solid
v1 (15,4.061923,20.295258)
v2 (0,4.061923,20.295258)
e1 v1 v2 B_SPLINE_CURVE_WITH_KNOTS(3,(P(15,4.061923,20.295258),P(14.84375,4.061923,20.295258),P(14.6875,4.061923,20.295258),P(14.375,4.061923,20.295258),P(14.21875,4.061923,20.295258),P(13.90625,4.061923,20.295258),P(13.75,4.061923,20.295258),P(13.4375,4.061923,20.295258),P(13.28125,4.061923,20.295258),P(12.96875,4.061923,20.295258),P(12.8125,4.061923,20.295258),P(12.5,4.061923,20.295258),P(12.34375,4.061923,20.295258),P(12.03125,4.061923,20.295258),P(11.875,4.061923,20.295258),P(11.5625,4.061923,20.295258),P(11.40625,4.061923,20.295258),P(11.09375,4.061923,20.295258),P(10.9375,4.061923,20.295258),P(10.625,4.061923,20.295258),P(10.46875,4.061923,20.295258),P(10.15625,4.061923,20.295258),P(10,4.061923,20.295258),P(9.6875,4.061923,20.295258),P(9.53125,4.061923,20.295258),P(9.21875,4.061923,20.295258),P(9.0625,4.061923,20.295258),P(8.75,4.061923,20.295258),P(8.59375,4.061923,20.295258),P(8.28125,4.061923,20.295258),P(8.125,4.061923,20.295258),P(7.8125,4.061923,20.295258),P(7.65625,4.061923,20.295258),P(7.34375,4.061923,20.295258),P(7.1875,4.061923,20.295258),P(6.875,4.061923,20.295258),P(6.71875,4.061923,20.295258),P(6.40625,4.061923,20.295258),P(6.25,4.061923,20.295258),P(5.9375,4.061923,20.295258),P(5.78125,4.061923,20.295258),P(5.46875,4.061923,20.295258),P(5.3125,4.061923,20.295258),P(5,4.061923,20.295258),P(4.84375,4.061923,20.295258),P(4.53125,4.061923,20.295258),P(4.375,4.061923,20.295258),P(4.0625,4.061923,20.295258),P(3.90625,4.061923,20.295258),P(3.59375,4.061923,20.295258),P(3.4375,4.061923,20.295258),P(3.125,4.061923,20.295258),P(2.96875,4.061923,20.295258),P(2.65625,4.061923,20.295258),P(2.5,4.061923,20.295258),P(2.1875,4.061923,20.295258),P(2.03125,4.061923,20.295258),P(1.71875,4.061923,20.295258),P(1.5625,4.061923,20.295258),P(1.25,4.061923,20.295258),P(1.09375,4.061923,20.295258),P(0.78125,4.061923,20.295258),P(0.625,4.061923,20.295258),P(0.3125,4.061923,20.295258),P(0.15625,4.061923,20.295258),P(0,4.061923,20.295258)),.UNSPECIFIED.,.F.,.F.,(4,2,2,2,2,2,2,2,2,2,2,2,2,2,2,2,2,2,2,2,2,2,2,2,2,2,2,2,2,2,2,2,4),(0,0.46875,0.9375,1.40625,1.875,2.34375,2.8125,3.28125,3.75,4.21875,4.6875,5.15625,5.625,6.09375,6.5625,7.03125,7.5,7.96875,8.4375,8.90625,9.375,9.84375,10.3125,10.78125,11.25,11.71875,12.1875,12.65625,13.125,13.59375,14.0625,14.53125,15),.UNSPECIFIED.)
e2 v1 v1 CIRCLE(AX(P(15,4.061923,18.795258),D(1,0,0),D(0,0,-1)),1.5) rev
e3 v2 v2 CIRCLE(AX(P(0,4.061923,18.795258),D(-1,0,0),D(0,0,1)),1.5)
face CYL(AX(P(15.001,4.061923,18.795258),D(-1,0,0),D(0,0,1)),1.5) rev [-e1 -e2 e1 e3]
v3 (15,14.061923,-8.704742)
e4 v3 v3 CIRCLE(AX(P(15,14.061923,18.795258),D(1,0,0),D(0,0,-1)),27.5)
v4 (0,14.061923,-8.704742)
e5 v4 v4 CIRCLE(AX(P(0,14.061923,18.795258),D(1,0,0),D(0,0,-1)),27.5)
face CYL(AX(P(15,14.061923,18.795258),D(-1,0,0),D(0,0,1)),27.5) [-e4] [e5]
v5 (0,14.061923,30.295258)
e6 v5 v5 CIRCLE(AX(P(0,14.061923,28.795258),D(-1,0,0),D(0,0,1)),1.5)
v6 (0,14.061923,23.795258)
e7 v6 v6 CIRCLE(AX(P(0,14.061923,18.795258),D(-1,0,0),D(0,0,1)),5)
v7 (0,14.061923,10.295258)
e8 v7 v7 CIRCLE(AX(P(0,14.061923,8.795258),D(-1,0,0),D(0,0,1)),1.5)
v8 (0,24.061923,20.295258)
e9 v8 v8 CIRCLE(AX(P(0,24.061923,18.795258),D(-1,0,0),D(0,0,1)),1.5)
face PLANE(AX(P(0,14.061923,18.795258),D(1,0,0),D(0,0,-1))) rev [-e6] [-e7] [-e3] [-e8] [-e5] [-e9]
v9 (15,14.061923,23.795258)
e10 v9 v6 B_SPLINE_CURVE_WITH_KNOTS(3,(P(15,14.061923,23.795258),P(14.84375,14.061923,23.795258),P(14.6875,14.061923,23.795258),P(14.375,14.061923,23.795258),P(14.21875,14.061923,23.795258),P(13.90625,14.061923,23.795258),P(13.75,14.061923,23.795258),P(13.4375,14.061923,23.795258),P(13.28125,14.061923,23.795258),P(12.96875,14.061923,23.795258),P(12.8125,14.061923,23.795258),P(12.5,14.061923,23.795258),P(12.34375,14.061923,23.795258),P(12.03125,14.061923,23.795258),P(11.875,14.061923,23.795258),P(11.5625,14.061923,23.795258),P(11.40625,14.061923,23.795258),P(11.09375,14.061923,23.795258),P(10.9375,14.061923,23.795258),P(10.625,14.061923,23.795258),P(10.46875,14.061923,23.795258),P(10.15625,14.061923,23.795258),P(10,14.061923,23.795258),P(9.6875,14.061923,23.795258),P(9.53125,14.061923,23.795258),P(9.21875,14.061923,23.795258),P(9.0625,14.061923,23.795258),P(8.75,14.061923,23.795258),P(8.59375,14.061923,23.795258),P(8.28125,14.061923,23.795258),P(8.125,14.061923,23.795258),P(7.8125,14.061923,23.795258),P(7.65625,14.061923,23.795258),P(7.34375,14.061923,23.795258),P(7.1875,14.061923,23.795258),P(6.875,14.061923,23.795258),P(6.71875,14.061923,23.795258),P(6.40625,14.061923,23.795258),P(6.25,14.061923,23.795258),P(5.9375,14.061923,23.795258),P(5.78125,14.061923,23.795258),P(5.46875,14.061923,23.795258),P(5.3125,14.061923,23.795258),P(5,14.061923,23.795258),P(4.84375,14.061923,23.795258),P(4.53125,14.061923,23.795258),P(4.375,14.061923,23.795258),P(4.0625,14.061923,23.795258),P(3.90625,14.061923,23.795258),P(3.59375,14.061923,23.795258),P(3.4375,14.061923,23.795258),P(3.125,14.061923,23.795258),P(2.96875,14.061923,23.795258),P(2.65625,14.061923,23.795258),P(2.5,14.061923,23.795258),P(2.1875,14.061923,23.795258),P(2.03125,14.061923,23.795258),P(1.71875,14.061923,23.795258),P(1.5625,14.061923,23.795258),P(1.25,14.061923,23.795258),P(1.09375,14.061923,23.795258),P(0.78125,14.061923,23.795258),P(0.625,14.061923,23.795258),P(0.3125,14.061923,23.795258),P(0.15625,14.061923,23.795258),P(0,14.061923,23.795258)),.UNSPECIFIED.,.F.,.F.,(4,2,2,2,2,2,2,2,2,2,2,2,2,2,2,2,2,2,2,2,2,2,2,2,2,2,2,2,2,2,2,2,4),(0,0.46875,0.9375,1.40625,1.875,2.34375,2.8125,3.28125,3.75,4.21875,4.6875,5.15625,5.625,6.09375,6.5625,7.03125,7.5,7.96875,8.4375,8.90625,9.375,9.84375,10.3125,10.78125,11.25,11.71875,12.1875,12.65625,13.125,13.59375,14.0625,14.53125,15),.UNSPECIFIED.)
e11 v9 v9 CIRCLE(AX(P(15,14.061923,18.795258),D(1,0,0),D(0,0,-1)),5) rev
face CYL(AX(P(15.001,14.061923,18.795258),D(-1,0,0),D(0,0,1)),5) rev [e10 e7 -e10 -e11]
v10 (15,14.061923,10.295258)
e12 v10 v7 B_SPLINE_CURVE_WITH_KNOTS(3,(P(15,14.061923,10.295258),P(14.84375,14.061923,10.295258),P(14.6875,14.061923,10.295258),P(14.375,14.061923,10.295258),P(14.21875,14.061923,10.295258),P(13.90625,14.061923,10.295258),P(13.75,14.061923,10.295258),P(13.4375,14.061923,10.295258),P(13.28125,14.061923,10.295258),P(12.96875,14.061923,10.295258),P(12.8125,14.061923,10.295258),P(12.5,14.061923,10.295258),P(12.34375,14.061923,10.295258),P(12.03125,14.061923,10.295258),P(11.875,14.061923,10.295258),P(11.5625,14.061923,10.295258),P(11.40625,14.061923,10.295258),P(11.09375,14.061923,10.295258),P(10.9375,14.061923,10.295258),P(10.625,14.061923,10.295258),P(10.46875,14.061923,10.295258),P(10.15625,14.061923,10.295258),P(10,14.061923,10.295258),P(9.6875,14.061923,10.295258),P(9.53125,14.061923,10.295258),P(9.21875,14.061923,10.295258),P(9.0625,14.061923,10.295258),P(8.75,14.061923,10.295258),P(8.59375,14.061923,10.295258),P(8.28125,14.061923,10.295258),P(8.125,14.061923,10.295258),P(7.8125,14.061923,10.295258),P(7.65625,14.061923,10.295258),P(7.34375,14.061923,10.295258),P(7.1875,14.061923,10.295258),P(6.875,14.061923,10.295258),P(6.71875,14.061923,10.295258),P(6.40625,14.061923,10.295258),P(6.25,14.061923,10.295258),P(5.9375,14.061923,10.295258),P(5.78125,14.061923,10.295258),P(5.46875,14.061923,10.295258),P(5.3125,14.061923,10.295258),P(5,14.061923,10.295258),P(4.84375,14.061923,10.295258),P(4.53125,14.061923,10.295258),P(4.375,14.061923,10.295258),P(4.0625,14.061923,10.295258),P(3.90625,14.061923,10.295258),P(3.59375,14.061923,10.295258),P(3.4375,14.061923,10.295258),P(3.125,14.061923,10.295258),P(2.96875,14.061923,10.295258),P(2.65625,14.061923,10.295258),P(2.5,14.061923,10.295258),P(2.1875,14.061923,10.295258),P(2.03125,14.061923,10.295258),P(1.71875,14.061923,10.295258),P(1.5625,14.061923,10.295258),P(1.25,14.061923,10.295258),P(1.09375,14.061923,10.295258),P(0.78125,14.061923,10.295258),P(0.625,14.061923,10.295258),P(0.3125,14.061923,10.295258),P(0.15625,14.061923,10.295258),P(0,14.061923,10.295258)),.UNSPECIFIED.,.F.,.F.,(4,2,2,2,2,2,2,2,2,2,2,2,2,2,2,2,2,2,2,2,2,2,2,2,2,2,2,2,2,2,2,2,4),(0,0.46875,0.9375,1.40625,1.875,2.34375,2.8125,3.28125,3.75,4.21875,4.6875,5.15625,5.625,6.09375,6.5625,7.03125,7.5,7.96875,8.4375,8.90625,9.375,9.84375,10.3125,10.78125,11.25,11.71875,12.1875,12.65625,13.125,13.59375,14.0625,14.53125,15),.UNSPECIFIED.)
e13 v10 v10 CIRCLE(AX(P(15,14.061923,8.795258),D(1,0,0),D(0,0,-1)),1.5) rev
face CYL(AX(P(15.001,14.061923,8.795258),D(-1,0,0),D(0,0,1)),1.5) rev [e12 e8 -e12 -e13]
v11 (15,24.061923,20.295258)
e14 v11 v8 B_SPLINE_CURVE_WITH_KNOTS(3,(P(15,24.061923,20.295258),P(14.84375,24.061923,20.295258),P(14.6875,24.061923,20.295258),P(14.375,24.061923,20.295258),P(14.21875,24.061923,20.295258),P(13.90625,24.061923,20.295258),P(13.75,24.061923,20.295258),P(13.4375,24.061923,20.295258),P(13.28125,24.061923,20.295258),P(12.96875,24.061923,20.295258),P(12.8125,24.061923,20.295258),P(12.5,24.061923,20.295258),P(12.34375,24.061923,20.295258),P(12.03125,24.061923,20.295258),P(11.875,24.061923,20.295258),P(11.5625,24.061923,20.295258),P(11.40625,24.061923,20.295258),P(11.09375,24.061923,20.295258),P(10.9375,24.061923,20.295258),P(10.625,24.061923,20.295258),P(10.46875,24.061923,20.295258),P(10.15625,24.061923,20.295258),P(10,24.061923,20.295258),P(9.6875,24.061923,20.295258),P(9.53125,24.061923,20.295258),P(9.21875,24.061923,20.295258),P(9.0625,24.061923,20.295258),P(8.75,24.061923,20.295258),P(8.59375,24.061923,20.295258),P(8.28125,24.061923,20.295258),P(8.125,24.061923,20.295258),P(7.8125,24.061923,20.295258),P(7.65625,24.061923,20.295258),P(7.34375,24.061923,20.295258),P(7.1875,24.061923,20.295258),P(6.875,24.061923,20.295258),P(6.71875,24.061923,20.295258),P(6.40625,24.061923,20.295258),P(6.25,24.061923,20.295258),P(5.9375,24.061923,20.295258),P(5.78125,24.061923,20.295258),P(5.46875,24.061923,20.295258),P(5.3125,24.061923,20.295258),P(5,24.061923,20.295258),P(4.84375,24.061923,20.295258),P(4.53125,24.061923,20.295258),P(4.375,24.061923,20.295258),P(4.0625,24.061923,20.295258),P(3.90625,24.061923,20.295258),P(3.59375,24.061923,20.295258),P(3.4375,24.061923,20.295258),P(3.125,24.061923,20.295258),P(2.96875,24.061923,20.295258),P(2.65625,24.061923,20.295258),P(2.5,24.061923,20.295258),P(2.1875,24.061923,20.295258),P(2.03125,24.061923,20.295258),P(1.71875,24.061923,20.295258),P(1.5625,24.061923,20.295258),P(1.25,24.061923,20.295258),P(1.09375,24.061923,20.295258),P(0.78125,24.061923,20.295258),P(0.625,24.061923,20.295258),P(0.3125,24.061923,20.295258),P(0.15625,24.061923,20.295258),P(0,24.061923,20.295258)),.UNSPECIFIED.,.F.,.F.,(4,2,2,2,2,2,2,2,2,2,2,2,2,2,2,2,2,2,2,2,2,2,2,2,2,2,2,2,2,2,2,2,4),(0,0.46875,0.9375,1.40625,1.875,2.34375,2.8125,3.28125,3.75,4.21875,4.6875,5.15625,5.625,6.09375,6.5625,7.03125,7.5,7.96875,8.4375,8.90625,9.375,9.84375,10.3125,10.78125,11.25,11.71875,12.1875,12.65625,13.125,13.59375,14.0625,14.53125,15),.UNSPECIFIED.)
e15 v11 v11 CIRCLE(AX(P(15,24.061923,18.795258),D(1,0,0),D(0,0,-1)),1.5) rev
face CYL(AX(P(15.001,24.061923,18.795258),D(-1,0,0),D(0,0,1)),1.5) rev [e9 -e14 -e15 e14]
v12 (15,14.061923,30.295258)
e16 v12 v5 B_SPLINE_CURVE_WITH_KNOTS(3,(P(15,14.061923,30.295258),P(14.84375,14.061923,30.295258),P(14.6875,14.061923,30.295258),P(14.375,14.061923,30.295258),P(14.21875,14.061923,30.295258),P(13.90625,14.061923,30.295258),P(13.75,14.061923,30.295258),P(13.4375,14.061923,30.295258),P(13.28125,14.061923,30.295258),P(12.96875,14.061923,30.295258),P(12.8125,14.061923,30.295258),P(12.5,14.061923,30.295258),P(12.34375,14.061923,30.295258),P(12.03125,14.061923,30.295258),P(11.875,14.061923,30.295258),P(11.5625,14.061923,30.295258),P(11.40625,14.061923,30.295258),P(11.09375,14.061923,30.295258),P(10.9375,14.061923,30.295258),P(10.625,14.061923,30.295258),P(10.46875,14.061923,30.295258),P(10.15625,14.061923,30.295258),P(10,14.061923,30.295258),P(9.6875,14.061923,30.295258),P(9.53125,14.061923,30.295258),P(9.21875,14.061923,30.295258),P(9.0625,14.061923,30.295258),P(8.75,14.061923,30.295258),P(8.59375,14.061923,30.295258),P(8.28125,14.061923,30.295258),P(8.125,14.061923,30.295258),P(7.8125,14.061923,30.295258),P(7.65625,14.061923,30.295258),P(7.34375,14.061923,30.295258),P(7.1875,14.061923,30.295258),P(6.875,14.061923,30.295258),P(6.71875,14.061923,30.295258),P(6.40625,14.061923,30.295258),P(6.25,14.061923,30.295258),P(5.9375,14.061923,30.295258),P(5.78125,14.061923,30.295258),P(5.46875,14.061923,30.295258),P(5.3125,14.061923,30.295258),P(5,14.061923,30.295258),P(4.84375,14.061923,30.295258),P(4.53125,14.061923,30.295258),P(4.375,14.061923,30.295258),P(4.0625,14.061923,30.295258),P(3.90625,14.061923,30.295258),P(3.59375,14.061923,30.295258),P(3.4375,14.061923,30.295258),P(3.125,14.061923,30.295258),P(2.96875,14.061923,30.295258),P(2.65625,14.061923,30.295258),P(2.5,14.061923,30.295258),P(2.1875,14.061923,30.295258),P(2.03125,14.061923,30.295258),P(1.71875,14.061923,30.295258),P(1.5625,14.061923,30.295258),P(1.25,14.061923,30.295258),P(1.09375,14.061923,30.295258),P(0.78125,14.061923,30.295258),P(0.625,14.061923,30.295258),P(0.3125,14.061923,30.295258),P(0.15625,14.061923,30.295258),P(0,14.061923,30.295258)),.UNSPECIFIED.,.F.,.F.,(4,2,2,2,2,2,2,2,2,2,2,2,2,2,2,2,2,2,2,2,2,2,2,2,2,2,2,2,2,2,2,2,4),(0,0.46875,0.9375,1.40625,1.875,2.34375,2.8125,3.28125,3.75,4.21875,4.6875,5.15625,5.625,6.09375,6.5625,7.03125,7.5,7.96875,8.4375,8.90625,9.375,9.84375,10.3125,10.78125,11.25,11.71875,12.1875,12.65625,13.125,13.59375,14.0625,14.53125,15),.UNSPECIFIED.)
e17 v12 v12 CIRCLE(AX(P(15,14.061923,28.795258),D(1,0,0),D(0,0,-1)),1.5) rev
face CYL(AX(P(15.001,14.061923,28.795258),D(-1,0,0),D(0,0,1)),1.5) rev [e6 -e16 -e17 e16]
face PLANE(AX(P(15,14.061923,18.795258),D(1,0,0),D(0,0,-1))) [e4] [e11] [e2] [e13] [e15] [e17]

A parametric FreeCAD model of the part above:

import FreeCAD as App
import Part
import Sketcher
from FreeCAD import Vector

doc = App.newDocument("Part")
body = doc.addObject("PartDesign::Body", "Body")

sketch1 = body.newObject("Sketcher::SketchObject", "Sketch")
sketch1.AttachmentSupport = (doc.getObject("YZ_Plane"), [""])
sketch1.MapMode = "FlatFace"
sketch1.addGeometry(Part.Circle(Vector(14, 19, 0), Vector(0, 0, 1), 28), False)
sketch1.addConstraint(Sketcher.Constraint("Diameter", 0, 55.0))
sketch1.addConstraint(Sketcher.Constraint("DistanceX", -1, 1, 0, 3, 14.061923))
sketch1.addConstraint(Sketcher.Constraint("DistanceY", -1, 1, 0, 3, 18.795258))
pad1 = body.newObject("PartDesign::Pad", "Pad")
pad1.Profile = sketch1
pad1.Length = 15

sketch2 = body.newObject("Sketcher::SketchObject", "Sketch001")
sketch2.AttachmentSupport = (doc.getObject("YZ_Plane"), [""])
sketch2.MapMode = "FlatFace"
sketch2.addGeometry(Part.Circle(Vector(14, 19, 0), Vector(0, 0, 1), 5), False)
sketch2.addConstraint(Sketcher.Constraint("Diameter", 0, 10.0))
sketch2.addConstraint(Sketcher.Constraint("DistanceX", -1, 1, 0, 3, 14.061923))
sketch2.addConstraint(Sketcher.Constraint("DistanceY", -1, 1, 0, 3, 18.795258))
pocket1 = body.newObject("PartDesign::Pocket", "Pocket")
pocket1.Profile = sketch2
pocket1.Type = "UpToFirst"
pocket1.Reversed = True

sketch3 = body.newObject("Sketcher::SketchObject", "Sketch002")
sketch3.AttachmentSupport = (doc.getObject("YZ_Plane"), [""])
sketch3.MapMode = "FlatFace"
sketch3.addGeometry(Part.Circle(Vector(24.1, 18.8, 0), Vector(0, 0, 1), 1.5), False)
sketch3.addConstraint(Sketcher.Constraint("Diameter", 0, 3.0))
sketch3.addConstraint(Sketcher.Constraint("DistanceX", -1, 1, 0, 3, 24.061923))
sketch3.addConstraint(Sketcher.Constraint("DistanceY", -1, 1, 0, 3, 18.795258))
pocket2 = body.newObject("PartDesign::Pocket", "Pocket001")
pocket2.Profile = sketch3
pocket2.Type = "UpToFirst"
pocket2.Reversed = True

sketch4 = body.newObject("Sketcher::SketchObject", "Sketch003")
sketch4.AttachmentSupport = (doc.getObject("YZ_Plane"), [""])
sketch4.MapMode = "FlatFace"
sketch4.addGeometry(Part.Circle(Vector(14.1, 28.8, 0), Vector(0, 0, 1), 1.5), False)
sketch4.addConstraint(Sketcher.Constraint("Diameter", 0, 3.0))
sketch4.addConstraint(Sketcher.Constraint("DistanceX", -1, 1, 0, 3, 14.061923))
sketch4.addConstraint(Sketcher.Constraint("DistanceY", -1, 1, 0, 3, 28.795258))
pocket3 = body.newObject("PartDesign::Pocket", "Pocket002")
pocket3.Profile = sketch4
pocket3.Type = "UpToFirst"
pocket3.Reversed = True

sketch5 = body.newObject("Sketcher::SketchObject", "Sketch004")
sketch5.AttachmentSupport = (doc.getObject("YZ_Plane"), [""])
sketch5.MapMode = "FlatFace"
sketch5.addGeometry(Part.Circle(Vector(14.1, 8.8, 0), Vector(0, 0, 1), 1.5), False)
sketch5.addConstraint(Sketcher.Constraint("Diameter", 0, 3.0))
sketch5.addConstraint(Sketcher.Constraint("DistanceX", -1, 1, 0, 3, 14.061923))
sketch5.addConstraint(Sketcher.Constraint("DistanceY", -1, 1, 0, 3, 8.795258))
pocket4 = body.newObject("PartDesign::Pocket", "Pocket003")
pocket4.Profile = sketch5
pocket4.Type = "UpToFirst"
pocket4.Reversed = True

sketch6 = body.newObject("Sketcher::SketchObject", "Sketch005")
sketch6.AttachmentSupport = (doc.getObject("YZ_Plane"), [""])
sketch6.MapMode = "FlatFace"
sketch6.addGeometry(Part.Circle(Vector(4.1, 18.8, 0), Vector(0, 0, 1), 1.5), False)
sketch6.addConstraint(Sketcher.Constraint("Diameter", 0, 3.0))
sketch6.addConstraint(Sketcher.Constraint("DistanceX", -1, 1, 0, 3, 4.061923))
sketch6.addConstraint(Sketcher.Constraint("DistanceY", -1, 1, 0, 3, 18.795258))
pocket5 = body.newObject("PartDesign::Pocket", "Pocket004")
pocket5.Profile = sketch6
pocket5.Type = "UpToFirst"
pocket5.Reversed = True

doc.recompute()
